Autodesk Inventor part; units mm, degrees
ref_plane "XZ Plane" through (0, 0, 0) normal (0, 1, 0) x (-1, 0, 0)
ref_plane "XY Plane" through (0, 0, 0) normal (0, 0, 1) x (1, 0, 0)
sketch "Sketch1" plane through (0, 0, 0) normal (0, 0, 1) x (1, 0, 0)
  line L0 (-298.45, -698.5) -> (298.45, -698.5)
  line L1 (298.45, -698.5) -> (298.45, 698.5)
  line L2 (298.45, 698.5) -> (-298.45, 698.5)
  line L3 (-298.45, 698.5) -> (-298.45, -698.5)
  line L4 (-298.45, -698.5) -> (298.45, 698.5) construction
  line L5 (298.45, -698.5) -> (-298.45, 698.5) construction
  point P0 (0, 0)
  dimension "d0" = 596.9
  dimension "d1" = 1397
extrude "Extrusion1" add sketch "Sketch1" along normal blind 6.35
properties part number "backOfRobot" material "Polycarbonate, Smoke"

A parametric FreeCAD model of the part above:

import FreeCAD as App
import Part
import Sketcher
Q = App.Units.Quantity

doc = App.newDocument("Part")
body = doc.addObject("PartDesign::Body", "Body")

sketch1 = body.newObject("Sketcher::SketchObject", "Sketch")
sketch1.AttachmentSupport = (doc.getObject("XY_Plane"), [""])
sketch1.MapMode = "FlatFace"
sketch1.addGeometry([
    Part.LineSegment(App.Vector(-298, 698, 0), App.Vector(-298, -698, 0)),
    Part.LineSegment(App.Vector(-298, -698, 0), App.Vector(298, -698, 0)),
    Part.LineSegment(App.Vector(298, -698, 0), App.Vector(298, 698, 0)),
    Part.LineSegment(App.Vector(298, 698, 0), App.Vector(-298, 698, 0)),
], False)
sketch1.addConstraint([
    Sketcher.Constraint("Coincident", 0, 2, 1, 1),
    Sketcher.Constraint("Coincident", 1, 2, 2, 1),
    Sketcher.Constraint("Coincident", 2, 2, 3, 1),
    Sketcher.Constraint("Coincident", 3, 2, 0, 1),
    Sketcher.Constraint("Vertical", 0),
    Sketcher.Constraint("Horizontal", 1),
    Sketcher.Constraint("Vertical", 2),
    Sketcher.Constraint("Horizontal", 3),
    Sketcher.Constraint("Symmetric", 0, 2, 2, 2, -1, 1),
    Sketcher.Constraint("DistanceY", 0, 2, 0, 1, Q("55 in")),
    Sketcher.Constraint("DistanceX", 1, 1, 1, 2, Q("23.5 in")),
])
pad1 = body.newObject("PartDesign::Pad", "Pad")
pad1.Profile = sketch1
pad1.Length = Q("0.25 in")

doc.recompute()
